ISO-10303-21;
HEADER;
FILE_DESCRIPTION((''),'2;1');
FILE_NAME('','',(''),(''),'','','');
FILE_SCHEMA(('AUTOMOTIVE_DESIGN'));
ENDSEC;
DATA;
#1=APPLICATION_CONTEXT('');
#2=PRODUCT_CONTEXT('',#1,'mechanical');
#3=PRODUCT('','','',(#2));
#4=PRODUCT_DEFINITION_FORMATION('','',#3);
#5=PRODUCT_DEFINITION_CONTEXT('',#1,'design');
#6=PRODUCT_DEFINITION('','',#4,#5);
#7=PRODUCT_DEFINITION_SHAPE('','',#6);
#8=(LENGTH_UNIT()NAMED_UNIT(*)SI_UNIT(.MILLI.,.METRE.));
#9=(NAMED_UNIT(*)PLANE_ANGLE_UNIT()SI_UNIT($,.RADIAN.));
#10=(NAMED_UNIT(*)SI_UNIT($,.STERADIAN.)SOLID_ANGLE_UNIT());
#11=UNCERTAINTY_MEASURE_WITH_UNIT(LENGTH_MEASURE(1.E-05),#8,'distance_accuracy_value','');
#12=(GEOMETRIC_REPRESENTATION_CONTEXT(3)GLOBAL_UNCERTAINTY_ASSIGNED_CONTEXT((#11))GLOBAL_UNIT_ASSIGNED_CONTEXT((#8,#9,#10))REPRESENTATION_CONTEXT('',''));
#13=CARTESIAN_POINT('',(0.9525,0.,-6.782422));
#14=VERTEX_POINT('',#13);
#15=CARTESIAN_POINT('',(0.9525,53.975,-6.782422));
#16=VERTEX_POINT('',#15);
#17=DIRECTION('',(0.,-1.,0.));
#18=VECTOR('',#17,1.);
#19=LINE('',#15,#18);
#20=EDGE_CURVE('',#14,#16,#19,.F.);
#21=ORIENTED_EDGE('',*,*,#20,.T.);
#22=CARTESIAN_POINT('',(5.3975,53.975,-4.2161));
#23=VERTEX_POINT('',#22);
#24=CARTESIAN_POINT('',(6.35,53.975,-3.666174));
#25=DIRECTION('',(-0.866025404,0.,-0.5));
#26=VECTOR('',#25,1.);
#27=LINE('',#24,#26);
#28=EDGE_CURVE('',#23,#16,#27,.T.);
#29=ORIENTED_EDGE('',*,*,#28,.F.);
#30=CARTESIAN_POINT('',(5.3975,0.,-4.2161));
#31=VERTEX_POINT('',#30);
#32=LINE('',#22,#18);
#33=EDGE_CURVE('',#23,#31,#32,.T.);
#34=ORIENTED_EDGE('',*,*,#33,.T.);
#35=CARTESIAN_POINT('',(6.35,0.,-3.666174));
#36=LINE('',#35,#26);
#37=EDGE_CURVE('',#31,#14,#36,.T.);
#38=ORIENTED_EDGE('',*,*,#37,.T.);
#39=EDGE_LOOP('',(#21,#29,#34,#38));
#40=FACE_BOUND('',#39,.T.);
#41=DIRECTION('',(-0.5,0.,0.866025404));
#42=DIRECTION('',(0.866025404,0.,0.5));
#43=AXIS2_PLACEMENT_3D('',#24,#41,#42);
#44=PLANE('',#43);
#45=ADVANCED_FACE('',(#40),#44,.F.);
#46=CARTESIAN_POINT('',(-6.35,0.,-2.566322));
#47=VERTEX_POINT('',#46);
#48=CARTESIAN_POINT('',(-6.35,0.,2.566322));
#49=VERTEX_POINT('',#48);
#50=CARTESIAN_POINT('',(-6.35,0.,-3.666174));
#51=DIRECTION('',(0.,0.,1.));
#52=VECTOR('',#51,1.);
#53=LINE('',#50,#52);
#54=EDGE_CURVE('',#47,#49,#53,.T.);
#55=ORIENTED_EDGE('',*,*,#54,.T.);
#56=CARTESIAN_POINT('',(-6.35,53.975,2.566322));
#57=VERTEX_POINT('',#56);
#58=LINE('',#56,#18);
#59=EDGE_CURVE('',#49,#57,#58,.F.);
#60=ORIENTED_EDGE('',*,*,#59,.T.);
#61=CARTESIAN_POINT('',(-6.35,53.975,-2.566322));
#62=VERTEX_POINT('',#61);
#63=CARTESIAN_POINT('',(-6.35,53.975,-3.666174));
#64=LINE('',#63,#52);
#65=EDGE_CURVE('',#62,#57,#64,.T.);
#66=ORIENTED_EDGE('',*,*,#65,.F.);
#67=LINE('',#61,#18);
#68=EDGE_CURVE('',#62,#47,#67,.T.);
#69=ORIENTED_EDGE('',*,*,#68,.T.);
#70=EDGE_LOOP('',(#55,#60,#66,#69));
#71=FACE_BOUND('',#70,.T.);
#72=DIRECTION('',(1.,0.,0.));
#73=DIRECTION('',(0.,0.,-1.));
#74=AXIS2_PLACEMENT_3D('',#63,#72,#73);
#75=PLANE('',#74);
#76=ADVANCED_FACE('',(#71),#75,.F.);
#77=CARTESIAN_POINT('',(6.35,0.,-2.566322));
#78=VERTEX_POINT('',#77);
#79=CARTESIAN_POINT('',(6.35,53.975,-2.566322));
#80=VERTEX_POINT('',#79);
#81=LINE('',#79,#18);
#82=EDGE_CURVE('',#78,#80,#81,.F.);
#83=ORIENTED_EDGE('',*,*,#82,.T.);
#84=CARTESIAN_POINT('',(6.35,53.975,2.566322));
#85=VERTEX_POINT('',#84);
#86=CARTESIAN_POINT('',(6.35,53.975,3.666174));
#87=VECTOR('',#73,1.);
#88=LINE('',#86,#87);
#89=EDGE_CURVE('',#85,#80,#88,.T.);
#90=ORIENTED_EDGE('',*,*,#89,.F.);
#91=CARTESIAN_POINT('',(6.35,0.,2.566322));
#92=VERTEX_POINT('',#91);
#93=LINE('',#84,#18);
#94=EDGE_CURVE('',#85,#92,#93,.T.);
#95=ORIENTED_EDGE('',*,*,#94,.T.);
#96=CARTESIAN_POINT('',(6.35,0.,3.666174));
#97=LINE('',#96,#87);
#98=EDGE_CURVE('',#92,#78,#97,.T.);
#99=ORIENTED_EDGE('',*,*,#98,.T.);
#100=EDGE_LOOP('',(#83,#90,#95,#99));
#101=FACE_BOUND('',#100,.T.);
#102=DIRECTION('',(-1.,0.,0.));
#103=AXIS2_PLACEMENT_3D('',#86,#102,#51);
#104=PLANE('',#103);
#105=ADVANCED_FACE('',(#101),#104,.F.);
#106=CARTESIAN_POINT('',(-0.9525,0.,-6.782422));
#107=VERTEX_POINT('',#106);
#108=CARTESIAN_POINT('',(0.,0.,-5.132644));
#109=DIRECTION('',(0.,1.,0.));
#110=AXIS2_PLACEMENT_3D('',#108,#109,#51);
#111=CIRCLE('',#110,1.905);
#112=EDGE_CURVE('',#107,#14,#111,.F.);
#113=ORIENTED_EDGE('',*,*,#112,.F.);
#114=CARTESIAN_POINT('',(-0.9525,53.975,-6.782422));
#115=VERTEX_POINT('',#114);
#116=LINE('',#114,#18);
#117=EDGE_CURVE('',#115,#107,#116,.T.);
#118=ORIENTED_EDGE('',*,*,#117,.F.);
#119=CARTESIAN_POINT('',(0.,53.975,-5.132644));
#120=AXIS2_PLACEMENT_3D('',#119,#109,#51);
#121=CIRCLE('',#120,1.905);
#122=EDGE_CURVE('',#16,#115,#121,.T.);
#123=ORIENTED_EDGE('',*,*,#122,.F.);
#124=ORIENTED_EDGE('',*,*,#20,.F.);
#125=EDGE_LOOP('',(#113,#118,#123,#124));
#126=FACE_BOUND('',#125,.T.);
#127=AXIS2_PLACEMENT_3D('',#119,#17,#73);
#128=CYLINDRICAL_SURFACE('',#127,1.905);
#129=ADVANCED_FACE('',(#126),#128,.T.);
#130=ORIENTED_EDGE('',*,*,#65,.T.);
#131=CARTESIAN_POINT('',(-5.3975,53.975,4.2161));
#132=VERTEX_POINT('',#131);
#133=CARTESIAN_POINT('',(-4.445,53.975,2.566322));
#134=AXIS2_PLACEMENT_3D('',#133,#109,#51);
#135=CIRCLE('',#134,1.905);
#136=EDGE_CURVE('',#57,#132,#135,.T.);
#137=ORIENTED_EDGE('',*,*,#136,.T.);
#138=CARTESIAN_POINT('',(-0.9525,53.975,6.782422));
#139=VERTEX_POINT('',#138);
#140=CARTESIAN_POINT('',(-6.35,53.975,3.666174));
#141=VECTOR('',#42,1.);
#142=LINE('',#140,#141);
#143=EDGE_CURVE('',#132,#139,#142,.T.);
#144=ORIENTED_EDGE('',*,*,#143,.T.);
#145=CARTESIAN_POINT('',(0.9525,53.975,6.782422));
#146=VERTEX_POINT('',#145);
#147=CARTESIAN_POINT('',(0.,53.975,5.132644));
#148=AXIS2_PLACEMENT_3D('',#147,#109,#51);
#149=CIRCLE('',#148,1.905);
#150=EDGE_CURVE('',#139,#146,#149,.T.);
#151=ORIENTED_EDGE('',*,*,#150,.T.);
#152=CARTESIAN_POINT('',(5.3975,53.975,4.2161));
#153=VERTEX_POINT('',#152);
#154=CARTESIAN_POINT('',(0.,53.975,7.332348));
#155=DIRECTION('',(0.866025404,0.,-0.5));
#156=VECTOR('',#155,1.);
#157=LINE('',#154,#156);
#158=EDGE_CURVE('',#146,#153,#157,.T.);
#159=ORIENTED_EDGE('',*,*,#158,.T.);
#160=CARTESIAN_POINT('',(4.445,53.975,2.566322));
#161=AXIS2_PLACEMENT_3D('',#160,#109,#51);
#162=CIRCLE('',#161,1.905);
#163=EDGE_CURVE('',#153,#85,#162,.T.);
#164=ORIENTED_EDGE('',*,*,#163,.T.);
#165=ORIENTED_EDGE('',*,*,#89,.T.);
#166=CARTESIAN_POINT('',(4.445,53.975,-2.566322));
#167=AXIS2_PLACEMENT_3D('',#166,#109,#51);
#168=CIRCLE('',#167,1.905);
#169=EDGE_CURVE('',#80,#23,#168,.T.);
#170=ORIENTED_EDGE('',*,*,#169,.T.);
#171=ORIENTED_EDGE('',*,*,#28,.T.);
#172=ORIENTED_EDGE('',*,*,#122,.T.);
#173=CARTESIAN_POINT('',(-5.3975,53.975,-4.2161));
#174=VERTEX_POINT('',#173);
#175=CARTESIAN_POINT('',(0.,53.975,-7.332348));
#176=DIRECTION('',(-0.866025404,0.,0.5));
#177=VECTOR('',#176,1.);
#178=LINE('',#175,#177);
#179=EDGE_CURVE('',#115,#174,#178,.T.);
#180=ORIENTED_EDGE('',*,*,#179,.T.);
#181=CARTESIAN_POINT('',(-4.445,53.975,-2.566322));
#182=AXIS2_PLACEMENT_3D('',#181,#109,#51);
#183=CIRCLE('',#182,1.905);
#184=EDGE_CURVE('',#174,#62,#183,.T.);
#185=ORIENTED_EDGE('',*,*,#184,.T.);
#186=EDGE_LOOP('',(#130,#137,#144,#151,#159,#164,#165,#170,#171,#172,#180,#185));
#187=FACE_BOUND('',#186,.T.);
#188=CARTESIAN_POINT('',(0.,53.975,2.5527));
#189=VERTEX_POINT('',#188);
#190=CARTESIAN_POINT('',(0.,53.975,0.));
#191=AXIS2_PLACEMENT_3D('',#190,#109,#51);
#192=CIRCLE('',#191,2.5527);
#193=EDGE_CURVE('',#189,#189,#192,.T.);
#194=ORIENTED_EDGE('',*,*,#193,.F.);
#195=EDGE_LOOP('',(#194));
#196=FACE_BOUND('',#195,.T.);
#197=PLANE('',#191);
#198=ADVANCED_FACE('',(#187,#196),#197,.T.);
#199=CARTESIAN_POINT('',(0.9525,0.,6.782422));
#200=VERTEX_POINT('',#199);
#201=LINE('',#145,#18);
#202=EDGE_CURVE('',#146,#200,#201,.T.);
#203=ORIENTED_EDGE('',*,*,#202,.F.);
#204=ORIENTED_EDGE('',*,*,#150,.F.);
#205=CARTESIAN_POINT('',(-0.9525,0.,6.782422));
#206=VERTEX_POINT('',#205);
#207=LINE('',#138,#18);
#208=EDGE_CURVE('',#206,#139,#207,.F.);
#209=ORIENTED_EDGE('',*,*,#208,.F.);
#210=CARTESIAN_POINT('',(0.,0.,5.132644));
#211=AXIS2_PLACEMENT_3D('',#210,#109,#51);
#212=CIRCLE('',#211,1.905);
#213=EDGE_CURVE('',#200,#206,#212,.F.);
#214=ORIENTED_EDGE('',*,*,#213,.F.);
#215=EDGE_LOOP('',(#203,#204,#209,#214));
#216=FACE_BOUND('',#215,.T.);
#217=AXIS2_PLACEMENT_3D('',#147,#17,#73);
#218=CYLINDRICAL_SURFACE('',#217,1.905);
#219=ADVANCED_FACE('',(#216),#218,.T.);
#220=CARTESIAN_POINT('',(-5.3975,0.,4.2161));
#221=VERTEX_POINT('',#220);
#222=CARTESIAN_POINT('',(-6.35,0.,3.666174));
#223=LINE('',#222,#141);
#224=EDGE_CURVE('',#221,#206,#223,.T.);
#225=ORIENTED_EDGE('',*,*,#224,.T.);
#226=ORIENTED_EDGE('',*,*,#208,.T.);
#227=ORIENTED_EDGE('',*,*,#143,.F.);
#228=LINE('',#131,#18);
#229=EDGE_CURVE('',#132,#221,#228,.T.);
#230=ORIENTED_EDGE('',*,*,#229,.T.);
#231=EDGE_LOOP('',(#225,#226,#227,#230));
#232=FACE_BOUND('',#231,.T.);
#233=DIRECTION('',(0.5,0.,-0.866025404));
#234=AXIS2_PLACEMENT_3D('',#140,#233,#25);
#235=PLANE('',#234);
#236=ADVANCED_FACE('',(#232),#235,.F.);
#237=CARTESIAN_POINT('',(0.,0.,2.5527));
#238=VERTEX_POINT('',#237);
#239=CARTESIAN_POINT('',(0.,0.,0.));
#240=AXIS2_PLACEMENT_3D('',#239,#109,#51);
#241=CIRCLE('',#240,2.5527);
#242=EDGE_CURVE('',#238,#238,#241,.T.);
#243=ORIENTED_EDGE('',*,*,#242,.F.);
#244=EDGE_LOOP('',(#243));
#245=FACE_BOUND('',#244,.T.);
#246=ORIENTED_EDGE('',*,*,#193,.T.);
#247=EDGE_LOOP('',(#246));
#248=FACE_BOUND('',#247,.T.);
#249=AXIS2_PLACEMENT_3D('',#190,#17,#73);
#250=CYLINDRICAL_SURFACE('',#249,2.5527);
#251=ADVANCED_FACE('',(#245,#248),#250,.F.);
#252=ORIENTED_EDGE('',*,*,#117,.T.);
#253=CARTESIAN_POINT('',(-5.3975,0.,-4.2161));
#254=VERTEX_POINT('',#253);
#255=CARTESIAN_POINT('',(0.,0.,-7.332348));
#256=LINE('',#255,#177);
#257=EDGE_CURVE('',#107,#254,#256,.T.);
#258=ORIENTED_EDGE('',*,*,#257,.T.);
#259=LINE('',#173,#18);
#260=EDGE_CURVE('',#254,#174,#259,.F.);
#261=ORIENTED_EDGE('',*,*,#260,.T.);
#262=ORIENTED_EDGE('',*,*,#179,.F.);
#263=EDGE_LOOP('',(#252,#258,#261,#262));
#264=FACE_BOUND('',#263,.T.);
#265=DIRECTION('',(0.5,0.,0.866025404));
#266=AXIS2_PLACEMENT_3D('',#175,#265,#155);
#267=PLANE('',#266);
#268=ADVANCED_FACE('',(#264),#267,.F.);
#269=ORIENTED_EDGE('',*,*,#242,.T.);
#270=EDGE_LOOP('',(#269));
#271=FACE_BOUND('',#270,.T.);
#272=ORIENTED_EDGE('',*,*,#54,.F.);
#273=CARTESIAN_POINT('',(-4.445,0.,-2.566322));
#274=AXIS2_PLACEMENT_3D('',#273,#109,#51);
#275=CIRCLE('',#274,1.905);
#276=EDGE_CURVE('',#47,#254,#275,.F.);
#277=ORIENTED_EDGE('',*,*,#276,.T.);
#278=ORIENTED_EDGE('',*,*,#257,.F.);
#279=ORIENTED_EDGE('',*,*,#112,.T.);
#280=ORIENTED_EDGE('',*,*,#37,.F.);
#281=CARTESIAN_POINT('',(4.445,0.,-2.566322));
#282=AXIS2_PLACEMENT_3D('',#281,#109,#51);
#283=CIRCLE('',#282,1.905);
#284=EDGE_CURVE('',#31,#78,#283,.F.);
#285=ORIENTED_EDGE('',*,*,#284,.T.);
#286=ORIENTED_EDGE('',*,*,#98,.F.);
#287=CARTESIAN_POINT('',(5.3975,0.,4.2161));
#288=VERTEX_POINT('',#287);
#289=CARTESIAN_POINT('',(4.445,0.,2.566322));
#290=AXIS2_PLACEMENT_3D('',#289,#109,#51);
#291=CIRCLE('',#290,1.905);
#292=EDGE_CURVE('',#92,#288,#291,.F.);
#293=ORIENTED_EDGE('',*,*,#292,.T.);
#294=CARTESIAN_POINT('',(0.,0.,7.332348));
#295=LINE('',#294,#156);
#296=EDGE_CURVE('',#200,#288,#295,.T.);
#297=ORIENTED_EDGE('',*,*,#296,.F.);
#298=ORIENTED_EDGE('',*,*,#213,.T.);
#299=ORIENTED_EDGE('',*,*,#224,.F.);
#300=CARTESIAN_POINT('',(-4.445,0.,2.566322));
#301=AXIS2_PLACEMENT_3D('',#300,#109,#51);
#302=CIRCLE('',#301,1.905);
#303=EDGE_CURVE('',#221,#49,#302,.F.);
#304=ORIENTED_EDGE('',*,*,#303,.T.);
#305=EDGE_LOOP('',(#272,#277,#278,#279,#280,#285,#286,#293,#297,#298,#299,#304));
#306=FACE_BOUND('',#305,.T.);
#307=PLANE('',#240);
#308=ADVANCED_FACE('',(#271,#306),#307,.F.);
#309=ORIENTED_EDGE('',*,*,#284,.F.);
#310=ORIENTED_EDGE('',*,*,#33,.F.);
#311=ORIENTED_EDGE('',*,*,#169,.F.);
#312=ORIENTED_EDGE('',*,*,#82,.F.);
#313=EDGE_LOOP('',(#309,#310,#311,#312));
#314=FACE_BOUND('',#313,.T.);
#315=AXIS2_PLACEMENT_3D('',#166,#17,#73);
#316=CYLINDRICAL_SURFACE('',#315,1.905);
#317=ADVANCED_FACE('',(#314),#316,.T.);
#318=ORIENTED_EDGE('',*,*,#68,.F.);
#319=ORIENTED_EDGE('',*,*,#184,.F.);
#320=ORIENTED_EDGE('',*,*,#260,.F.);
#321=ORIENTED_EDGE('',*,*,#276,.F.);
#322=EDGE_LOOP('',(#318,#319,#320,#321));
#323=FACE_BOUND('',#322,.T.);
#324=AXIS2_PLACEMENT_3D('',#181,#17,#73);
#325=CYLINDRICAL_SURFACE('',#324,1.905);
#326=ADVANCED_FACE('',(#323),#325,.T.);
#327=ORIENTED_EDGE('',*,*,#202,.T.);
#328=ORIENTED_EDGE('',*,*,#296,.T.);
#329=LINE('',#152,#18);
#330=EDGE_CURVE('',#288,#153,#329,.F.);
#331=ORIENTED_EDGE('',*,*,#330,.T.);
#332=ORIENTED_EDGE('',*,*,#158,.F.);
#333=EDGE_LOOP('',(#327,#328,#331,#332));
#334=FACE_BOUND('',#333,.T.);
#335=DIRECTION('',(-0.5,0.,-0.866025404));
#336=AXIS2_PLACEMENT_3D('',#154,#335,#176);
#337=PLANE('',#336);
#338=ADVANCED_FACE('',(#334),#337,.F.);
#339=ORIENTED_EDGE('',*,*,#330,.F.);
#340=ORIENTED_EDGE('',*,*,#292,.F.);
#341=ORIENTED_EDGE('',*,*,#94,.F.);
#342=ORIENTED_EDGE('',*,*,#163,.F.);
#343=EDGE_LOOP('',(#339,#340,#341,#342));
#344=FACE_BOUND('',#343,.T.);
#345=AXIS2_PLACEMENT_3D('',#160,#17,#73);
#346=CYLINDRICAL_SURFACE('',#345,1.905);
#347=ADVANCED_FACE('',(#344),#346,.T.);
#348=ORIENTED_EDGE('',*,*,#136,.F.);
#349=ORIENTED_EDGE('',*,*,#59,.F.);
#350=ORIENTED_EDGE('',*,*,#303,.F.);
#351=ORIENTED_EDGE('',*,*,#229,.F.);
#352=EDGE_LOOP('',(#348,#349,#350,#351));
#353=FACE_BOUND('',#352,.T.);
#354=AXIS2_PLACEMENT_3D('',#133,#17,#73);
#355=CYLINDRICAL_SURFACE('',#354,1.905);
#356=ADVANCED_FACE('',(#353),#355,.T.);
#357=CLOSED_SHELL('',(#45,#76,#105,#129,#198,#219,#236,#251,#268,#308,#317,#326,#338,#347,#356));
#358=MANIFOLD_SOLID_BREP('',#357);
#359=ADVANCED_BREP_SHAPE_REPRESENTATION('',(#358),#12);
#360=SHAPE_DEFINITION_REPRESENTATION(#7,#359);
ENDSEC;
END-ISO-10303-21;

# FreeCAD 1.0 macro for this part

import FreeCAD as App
import Part
import Sketcher
Q = App.Units.Quantity


def edges_at(feature, points):
    """Names of the edges that pass closest to the given points."""
    edges = feature.Shape.Edges
    near = lambda p: min(range(len(edges)), key=lambda i: edges[i].distToShape(Part.Vertex(*p))[0])
    return sorted({f"Edge{near(p) + 1}" for p in points})


def add_polygon(sketch, points):
    """Adds a closed chain of lines whose ends are joined by coincident constraints."""
    first, n = sketch.GeometryCount, len(points)
    for a, b in zip(points, points[1:] + points[:1]):
        sketch.addGeometry(Part.LineSegment(App.Vector(*a, 0), App.Vector(*b, 0)), False)
    for i in range(n):
        sketch.addConstraint(Sketcher.Constraint("Coincident", first + i, 2, first + (i + 1) % n, 1))

doc = App.newDocument("Part")
body = doc.addObject("PartDesign::Body", "Body")

sketch1 = body.newObject("Sketcher::SketchObject", "Sketch")
sketch1.AttachmentSupport = (doc.getObject("XZ_Plane"), [""])
sketch1.MapMode = "FlatFace"
add_polygon(sketch1, [(0, -7.332348), (-6.35, -3.666174), (-6.35, 3.666174), (0, 7.332348), (6.35, 3.666174), (6.35, -3.666174)])
sketch1.addGeometry(Part.Circle(App.Vector(0, 0, 0), App.Vector(0, 0, 1), 2.5527), False)
sketch1.addConstraint([
    Sketcher.Constraint("Vertical", 1),
    Sketcher.Constraint("Vertical", 4),
    Sketcher.Constraint("Coincident", 6, 3, -1, 1),
    Sketcher.Constraint("Symmetric", 0, 2, 3, 2, -1, 1),
    Sketcher.Constraint("Symmetric", 2, 2, 5, 2, -1, 1),
    Sketcher.Constraint("PointOnObject", 2, 2, -2),
    Sketcher.Constraint("Parallel", 2, 5),
    Sketcher.Constraint("Horizontal", 1, 2, 3, 2),
    Sketcher.Constraint("Diameter", 6, Q("0.201 in")),
    Sketcher.Constraint("Angle", 0, Q("150 deg")),
    Sketcher.Constraint("DistanceX", 1, 2, 3, 2, Q("0.5 in")),
    Sketcher.Constraint("DistanceY", 1, 1, 1, 2, 7.332348),
])
pad1 = body.newObject("PartDesign::Pad", "Pad")
pad1.Profile = sketch1
pad1.Length = Q("2.125 in")
pad1.Reversed = True
doc.recompute()

fillet = body.newObject("PartDesign::Fillet", "Fillet")
fillet.Base = (pad1, edges_at(pad1, [
    (6.35, 26.988, -3.666),
    (6.35, 26.988, 3.666),
    (0, 26.988, 7.332),
    (-6.35, 26.988, 3.666),
    (-6.35, 26.988, -3.666),
    (0, 26.988, -7.332),
]))
fillet.Radius = Q("0.075 in")

doc.recompute()
